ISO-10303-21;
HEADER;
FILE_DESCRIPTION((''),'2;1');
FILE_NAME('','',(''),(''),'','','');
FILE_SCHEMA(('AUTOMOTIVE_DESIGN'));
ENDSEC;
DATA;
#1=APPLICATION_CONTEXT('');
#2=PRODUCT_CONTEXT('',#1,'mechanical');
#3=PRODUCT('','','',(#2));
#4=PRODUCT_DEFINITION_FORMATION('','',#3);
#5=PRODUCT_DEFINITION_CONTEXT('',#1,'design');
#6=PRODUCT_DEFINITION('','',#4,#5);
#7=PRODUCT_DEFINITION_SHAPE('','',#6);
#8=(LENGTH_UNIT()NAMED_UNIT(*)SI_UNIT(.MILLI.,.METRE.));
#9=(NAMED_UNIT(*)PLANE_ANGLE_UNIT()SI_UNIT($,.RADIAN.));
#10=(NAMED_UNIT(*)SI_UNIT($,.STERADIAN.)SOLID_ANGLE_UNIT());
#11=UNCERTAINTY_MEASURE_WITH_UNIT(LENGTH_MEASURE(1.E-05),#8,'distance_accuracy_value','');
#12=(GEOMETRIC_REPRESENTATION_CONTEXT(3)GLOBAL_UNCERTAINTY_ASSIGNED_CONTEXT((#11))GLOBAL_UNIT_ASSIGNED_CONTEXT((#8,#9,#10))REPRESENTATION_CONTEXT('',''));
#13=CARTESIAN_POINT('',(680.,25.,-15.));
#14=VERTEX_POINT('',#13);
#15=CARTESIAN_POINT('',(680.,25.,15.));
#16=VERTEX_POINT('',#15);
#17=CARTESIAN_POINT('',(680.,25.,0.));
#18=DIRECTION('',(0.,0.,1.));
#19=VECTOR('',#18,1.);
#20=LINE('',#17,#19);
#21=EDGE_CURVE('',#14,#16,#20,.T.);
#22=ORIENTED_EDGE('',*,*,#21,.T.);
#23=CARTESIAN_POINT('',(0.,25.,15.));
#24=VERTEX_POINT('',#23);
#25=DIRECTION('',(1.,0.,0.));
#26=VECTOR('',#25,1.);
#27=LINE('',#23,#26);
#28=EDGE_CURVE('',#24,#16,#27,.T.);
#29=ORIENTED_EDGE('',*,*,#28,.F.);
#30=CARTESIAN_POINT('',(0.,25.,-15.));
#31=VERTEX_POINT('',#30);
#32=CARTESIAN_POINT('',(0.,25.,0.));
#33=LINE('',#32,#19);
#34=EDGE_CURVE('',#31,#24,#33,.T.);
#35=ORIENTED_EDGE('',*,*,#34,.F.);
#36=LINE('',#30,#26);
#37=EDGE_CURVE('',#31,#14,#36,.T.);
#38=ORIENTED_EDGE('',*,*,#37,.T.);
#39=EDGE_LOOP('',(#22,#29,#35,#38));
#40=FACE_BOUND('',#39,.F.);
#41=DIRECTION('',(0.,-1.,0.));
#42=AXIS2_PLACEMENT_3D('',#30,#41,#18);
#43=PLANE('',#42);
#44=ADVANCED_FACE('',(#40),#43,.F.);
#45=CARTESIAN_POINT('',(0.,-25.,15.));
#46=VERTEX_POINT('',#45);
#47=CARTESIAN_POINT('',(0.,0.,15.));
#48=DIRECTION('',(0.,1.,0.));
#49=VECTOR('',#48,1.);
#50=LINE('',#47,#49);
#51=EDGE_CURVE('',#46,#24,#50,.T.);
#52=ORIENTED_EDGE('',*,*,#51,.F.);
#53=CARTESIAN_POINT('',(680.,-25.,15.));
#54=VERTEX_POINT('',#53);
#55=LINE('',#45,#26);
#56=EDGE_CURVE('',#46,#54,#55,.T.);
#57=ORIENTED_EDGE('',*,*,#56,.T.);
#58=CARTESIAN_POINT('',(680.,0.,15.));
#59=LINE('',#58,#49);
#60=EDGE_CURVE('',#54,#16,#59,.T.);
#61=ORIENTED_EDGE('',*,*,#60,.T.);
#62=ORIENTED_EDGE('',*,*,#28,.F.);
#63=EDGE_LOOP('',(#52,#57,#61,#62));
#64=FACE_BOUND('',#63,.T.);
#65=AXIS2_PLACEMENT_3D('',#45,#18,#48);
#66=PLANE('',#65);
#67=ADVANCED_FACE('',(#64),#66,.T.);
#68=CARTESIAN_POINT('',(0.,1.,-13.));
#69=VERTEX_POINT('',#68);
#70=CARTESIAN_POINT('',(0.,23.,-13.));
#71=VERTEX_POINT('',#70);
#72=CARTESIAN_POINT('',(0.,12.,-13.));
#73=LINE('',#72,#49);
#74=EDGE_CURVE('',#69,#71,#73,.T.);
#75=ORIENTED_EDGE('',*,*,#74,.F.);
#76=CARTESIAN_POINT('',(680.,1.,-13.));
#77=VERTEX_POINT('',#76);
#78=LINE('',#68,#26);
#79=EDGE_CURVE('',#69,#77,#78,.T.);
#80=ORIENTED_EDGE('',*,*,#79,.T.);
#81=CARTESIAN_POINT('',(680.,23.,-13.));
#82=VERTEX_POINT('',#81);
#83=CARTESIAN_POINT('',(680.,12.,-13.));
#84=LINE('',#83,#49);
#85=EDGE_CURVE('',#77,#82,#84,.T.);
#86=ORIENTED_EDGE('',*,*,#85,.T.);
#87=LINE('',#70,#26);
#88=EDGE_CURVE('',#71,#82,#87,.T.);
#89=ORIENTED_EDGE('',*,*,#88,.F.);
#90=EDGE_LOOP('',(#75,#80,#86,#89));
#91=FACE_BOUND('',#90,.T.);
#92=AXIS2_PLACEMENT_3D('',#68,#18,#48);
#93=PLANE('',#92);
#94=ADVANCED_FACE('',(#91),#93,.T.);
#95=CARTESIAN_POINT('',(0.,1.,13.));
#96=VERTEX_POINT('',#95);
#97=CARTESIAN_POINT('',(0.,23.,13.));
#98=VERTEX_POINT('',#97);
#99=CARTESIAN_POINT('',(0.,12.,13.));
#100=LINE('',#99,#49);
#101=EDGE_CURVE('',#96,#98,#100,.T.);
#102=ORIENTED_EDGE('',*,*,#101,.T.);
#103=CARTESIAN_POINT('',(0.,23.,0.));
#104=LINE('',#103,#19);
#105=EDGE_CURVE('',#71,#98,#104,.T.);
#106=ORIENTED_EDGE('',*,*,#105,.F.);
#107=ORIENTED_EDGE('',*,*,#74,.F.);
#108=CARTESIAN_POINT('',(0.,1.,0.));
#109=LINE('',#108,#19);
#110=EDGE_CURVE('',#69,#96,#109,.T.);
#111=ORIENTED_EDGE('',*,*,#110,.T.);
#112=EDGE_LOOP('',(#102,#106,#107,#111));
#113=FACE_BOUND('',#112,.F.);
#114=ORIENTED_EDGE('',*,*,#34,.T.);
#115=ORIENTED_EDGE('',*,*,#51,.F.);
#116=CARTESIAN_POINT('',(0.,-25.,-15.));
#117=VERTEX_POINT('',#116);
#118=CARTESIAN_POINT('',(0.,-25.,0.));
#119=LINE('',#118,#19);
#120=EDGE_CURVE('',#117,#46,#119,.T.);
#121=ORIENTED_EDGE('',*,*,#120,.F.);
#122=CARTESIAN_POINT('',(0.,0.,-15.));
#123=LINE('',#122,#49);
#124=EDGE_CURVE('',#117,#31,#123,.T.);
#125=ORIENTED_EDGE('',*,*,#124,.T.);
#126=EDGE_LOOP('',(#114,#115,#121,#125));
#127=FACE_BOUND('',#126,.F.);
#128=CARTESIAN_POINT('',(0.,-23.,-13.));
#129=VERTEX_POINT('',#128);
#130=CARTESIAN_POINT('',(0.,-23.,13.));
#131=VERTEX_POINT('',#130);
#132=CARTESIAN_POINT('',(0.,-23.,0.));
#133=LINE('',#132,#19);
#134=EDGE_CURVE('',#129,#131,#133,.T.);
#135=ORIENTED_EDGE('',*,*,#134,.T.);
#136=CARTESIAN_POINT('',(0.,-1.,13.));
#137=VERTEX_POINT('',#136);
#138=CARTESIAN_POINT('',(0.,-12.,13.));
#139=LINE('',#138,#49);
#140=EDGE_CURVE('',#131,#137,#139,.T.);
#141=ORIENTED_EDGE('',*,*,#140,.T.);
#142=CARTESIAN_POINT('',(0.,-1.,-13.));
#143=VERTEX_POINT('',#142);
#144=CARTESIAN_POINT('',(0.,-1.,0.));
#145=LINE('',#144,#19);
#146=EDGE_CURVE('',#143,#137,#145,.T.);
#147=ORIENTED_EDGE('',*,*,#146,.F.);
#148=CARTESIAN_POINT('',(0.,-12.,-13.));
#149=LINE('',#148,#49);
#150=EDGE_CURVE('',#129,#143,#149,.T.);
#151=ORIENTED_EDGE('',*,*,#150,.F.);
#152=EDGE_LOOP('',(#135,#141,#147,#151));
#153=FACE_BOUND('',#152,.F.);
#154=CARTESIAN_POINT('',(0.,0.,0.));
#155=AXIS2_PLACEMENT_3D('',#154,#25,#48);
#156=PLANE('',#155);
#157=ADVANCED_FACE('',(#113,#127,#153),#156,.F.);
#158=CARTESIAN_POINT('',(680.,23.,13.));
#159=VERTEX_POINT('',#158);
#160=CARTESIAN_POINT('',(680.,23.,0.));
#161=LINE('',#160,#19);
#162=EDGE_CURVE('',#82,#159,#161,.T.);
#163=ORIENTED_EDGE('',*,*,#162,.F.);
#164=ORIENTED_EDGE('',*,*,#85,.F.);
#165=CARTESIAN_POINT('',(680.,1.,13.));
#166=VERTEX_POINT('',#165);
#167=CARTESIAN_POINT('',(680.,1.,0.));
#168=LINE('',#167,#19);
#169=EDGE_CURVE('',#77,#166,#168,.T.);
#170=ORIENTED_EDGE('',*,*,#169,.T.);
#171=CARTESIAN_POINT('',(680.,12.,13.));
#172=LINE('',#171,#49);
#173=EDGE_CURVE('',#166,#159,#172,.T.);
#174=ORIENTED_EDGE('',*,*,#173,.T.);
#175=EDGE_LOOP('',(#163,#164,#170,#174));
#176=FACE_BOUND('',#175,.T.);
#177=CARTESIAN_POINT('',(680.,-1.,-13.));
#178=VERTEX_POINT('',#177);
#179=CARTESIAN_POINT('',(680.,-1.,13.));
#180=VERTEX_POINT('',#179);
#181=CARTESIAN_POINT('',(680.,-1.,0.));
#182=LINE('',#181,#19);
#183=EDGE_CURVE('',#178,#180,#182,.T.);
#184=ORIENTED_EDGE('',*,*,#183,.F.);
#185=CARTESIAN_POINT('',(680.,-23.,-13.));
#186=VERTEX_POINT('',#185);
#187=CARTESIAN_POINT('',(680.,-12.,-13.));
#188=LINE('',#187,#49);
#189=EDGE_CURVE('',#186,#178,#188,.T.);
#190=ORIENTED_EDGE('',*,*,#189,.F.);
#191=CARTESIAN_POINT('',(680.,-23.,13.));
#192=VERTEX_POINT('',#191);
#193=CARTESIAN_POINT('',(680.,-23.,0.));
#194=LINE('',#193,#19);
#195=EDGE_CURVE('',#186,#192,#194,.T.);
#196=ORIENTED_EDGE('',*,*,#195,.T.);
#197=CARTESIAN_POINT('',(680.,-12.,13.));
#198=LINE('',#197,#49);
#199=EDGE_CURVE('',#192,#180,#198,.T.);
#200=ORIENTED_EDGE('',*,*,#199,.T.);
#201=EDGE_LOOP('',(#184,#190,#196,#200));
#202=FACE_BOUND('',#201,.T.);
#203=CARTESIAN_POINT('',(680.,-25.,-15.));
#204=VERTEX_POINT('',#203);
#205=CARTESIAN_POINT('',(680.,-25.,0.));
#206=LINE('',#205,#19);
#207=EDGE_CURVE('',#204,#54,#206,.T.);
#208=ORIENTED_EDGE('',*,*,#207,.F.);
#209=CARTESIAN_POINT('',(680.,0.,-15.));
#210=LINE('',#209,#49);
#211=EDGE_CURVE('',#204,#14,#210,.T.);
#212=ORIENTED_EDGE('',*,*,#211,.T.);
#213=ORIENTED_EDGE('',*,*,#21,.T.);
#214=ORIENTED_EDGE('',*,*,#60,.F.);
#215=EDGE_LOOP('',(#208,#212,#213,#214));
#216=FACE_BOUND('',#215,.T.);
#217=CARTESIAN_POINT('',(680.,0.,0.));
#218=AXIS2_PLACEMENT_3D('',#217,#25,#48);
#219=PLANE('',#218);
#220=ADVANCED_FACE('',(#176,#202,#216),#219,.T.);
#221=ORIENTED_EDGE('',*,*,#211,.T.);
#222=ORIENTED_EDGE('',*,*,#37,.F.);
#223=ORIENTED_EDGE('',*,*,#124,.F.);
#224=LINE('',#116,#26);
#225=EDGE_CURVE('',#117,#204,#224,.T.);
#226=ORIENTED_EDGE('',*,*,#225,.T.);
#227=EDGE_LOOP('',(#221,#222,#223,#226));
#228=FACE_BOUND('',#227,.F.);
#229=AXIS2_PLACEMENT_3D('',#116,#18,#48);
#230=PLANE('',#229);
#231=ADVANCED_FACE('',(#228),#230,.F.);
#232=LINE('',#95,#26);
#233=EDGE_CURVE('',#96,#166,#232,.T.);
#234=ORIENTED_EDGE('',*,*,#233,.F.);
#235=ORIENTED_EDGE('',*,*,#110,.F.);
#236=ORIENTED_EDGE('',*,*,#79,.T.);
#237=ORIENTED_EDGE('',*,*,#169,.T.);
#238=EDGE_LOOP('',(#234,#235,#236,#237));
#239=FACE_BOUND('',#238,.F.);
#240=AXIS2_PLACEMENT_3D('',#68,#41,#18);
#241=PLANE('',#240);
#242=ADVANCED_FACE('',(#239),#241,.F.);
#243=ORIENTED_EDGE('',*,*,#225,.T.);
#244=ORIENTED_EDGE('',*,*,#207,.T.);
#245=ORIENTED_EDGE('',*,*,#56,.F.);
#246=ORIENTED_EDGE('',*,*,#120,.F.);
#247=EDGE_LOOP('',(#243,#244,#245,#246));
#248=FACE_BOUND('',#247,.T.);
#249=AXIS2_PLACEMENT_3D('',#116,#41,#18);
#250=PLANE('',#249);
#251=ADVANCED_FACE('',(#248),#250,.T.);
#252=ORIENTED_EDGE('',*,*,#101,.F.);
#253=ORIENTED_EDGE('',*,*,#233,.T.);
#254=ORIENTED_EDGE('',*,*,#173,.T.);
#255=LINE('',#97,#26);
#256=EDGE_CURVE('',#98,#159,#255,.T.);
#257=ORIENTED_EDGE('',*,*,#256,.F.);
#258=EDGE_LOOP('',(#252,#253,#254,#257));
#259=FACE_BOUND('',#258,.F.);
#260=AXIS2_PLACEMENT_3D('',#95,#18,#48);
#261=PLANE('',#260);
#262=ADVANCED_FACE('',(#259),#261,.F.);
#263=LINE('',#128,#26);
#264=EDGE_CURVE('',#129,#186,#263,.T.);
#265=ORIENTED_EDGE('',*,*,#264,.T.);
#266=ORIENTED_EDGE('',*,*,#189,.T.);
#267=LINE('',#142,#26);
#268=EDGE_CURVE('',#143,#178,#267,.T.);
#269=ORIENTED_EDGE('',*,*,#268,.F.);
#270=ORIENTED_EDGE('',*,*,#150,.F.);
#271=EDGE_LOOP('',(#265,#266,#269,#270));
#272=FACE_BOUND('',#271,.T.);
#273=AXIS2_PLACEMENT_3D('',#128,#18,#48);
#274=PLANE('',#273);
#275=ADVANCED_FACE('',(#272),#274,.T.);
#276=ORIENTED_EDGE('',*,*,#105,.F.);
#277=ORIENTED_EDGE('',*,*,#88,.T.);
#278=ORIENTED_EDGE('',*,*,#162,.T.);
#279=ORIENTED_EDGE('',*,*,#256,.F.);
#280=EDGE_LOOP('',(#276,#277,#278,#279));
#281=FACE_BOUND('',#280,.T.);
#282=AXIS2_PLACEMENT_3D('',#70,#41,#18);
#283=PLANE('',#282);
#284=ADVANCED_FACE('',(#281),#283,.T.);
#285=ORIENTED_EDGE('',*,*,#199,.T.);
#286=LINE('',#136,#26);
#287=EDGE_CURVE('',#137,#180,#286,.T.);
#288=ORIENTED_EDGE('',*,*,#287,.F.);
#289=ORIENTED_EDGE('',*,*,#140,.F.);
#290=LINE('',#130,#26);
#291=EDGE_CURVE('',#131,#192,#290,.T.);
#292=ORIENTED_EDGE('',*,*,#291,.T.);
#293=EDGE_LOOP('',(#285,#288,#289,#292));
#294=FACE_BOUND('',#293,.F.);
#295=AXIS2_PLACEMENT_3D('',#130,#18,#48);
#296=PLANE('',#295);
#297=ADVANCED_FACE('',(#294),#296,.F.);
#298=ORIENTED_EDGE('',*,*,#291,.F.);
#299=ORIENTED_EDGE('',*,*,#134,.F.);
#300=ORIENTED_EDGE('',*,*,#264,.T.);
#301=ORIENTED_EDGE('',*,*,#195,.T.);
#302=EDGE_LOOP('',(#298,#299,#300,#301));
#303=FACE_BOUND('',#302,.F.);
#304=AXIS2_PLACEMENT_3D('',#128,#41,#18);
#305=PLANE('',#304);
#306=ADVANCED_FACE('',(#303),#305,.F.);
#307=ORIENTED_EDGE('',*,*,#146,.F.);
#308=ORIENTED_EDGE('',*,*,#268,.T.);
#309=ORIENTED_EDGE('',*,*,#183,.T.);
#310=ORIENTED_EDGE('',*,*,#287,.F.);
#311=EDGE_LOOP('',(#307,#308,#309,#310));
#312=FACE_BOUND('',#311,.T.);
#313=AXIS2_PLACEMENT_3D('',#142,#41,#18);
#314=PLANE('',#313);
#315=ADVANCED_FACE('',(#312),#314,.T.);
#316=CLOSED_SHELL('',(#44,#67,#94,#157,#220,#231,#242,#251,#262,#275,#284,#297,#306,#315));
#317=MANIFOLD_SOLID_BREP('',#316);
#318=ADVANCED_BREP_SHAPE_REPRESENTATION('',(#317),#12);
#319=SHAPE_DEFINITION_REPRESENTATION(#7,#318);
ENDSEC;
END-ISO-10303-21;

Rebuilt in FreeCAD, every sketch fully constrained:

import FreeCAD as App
import Part
import Sketcher

V = App.Vector


def add_polygon(sketch, points):
    """Adds a closed chain of lines whose ends are joined by coincident constraints."""
    first, n = sketch.GeometryCount, len(points)
    for a, b in zip(points, points[1:] + points[:1]):
        sketch.addGeometry(Part.LineSegment(App.Vector(*a, 0), App.Vector(*b, 0)), False)
    for i in range(n):
        sketch.addConstraint(Sketcher.Constraint("Coincident", first + i, 2, first + (i + 1) % n, 1))

doc = App.newDocument("Part")
body = doc.addObject("PartDesign::Body", "Body")

# Sketch on YZ plane
sketch1 = body.newObject("Sketcher::SketchObject", "Sketch")
sketch1.AttachmentSupport = (doc.getObject("YZ_Plane"), [""])
sketch1.MapMode = "FlatFace"
add_polygon(sketch1, [(-25, 15), (-25, -15), (25, -15), (25, 15)])  # lines 0-3
add_polygon(sketch1, [(-1, -13), (-23, -13), (-23, 13), (-1, 13)])  # lines 4-7
add_polygon(sketch1, [(23, -13), (1, -13), (1, 13), (23, 13)])  # lines 8-11
sketch1.addConstraint([
    Sketcher.Constraint("Vertical", 0),
    Sketcher.Constraint("Horizontal", 1),
    Sketcher.Constraint("Vertical", 2),
    Sketcher.Constraint("Horizontal", 3),
    Sketcher.Constraint("Horizontal", 4),
    Sketcher.Constraint("Vertical", 5),
    Sketcher.Constraint("Horizontal", 6),
    Sketcher.Constraint("Vertical", 7),
    Sketcher.Constraint("Horizontal", 8),
    Sketcher.Constraint("Vertical", 9),
    Sketcher.Constraint("Horizontal", 10),
    Sketcher.Constraint("Vertical", 11),
    Sketcher.Constraint("Symmetric", 0, 2, 2, 2, -1, 1),
    Sketcher.Constraint("Symmetric", 6, 2, 8, 2, -1, 1),
    Sketcher.Constraint("Symmetric", 4, 2, 10, 2, -1, 1),
    Sketcher.Constraint("Horizontal", 7, 2, 8, 2),
    Sketcher.Constraint("DistanceX", 1, 1, 1, 2, 50.0),
    Sketcher.Constraint("DistanceX", 4, 2, 4, 1, 22.0),
    Sketcher.Constraint("DistanceY", 0, 2, 0, 1, 30.0),
    Sketcher.Constraint("DistanceY", 5, 1, 5, 2, 26.0),
    Sketcher.Constraint("DistanceX", 4, 2, -1, 1, 23.0),
])
pad1 = body.newObject("PartDesign::Pad", "Pad")
pad1.Profile = sketch1
pad1.Length = 680

doc.recompute()
